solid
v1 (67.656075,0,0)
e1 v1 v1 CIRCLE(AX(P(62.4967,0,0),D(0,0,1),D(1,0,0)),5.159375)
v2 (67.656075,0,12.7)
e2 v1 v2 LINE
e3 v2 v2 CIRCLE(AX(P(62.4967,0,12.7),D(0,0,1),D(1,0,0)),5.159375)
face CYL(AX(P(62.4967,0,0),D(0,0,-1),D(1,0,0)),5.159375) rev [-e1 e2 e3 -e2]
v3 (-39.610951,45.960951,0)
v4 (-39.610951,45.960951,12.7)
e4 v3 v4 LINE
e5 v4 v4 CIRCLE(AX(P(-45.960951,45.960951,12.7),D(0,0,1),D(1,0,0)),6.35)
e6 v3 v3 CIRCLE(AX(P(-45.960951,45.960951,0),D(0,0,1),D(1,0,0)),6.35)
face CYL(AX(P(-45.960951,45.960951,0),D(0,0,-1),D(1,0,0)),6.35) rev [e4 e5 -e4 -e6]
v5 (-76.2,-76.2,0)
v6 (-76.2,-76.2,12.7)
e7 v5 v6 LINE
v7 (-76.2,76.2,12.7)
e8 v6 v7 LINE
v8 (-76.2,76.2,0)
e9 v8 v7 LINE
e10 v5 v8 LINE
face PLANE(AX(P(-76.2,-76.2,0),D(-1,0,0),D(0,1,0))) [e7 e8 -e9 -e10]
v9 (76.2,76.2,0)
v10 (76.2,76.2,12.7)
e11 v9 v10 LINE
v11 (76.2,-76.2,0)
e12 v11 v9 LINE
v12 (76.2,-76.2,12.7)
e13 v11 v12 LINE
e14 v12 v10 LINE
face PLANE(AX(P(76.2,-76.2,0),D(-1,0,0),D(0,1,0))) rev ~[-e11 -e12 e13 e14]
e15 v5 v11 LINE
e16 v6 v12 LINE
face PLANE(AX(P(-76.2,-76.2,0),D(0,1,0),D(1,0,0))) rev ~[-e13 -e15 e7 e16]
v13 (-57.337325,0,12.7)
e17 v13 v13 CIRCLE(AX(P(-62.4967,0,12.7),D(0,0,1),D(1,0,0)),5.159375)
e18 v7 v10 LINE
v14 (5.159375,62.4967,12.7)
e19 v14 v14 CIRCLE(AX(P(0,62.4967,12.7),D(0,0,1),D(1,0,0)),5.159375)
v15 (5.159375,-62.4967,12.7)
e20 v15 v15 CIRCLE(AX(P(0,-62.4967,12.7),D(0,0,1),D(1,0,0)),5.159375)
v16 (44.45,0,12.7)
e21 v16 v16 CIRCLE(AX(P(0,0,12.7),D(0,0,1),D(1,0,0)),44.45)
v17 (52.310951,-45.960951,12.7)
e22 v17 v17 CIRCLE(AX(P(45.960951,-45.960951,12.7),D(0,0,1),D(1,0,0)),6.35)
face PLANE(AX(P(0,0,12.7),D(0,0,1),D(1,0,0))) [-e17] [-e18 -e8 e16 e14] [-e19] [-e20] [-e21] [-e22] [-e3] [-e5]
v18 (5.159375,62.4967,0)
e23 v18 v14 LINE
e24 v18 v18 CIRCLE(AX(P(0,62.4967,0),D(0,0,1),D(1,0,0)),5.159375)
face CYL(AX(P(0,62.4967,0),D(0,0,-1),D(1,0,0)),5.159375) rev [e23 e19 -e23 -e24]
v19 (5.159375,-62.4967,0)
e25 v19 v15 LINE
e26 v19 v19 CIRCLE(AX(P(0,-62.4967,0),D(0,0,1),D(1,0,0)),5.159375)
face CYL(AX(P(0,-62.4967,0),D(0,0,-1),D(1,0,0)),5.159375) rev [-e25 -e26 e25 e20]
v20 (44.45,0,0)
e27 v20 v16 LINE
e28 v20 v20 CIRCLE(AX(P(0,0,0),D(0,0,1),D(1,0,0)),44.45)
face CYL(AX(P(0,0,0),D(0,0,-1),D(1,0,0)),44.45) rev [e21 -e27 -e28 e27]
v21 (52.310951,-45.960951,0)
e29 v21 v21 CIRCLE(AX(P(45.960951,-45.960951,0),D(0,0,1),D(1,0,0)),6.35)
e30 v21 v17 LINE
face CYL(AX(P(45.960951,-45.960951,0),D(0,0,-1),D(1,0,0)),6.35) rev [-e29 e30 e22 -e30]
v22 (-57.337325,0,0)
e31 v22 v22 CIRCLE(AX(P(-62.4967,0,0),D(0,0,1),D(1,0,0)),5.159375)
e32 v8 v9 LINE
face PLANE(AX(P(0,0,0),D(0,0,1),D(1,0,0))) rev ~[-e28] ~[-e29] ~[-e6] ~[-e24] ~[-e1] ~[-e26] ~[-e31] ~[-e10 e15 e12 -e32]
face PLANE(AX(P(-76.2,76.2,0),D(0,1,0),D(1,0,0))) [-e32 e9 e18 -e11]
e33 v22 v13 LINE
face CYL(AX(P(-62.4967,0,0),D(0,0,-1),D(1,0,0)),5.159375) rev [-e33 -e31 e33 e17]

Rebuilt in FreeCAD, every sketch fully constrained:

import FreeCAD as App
import Part
import Sketcher
from FreeCAD import Vector
Q = App.Units.Quantity

doc = App.newDocument("Part")
params = doc.addObject("Spreadsheet::Sheet", "Params")
for row, (alias, value) in enumerate([
    ("sketch1_diameter", "0.5 in"),
    ("sketch1_diameter2", "3.5 in"),
    ("sketch1_width", "6 in"),
    ("sketch1_diameter3", "0.40625 in"),
    ("pad1_length", "0.5 in"),
], start=1):
    params.set(f"A{row}", alias)
    params.set(f"B{row}", "=" + value)
    params.setAlias(f"B{row}", alias)

body = doc.addObject("PartDesign::Body", "Body")

# Sketch on XY plane
sketch1 = body.newObject("Sketcher::SketchObject", "Sketch")
sketch1.AttachmentSupport = (doc.getObject("XY_Plane"), [""])
sketch1.MapMode = "FlatFace"
sketch1.addGeometry(Part.LineSegment(Vector(-76, 76, 0), Vector(-76, -76, 0)), False)
sketch1.addGeometry(Part.LineSegment(Vector(-76, -76, 0), Vector(76, -76, 0)), False)
sketch1.addGeometry(Part.LineSegment(Vector(76, -76, 0), Vector(76, 76, 0)), False)
sketch1.addGeometry(Part.LineSegment(Vector(76, 76, 0), Vector(-76, 76, 0)), False)
sketch1.addGeometry(Part.Circle(Vector(0, -62, 0), Vector(0, 0, 1), 5), False)
sketch1.addGeometry(Part.Circle(Vector(46, -46, 0), Vector(0, 0, 1), 6), False)
sketch1.addGeometry(Part.Circle(Vector(-62, 0, 0), Vector(0, 0, 1), 5), False)
sketch1.addGeometry(Part.Circle(Vector(-46, 46, 0), Vector(0, 0, 1), 6), False)
sketch1.addGeometry(Part.Circle(Vector(0, 0, 0), Vector(0, 0, 1), 44), False)
sketch1.addGeometry(Part.Circle(Vector(62, 0, 0), Vector(0, 0, 1), 5), False)
sketch1.addGeometry(Part.Circle(Vector(0, 62, 0), Vector(0, 0, 1), 5), False)
sketch1.addConstraint(Sketcher.Constraint("Coincident", 0, 2, 1, 1))
sketch1.addConstraint(Sketcher.Constraint("Coincident", 1, 2, 2, 1))
sketch1.addConstraint(Sketcher.Constraint("Coincident", 2, 2, 3, 1))
sketch1.addConstraint(Sketcher.Constraint("Coincident", 3, 2, 0, 1))
sketch1.addConstraint(Sketcher.Constraint("Vertical", 0))
sketch1.addConstraint(Sketcher.Constraint("Horizontal", 1))
sketch1.addConstraint(Sketcher.Constraint("Vertical", 2))
sketch1.addConstraint(Sketcher.Constraint("Horizontal", 3))
sketch1.addConstraint(Sketcher.Constraint("Coincident", 8, 3, -1, 1))
sketch1.addConstraint(Sketcher.Constraint("Equal", 4, 6))
sketch1.addConstraint(Sketcher.Constraint("Equal", 5, 7))
sketch1.addConstraint(Sketcher.Constraint("Equal", 6, 9))
sketch1.addConstraint(Sketcher.Constraint("Equal", 9, 10))
sketch1.addConstraint(Sketcher.Constraint("Symmetric", 5, 3, 7, 3, -1, 1))
sketch1.addConstraint(Sketcher.Constraint("Symmetric", 6, 3, 9, 3, -1, 1))
sketch1.addConstraint(Sketcher.Constraint("Symmetric", 4, 3, 10, 3, -1, 1))
sketch1.addConstraint(Sketcher.Constraint("Symmetric", 0, 2, 2, 2, -1, 1))
sketch1.addConstraint(Sketcher.Constraint("PointOnObject", 4, 3, -2))
sketch1.addConstraint(Sketcher.Constraint("PointOnObject", 6, 3, -1))
sketch1.addConstraint(Sketcher.Constraint("Equal", 3, 0))
sketch1.addConstraint(Sketcher.Constraint("Diameter", 5, Q("0.5 in")))
sketch1.addConstraint(Sketcher.Constraint("Diameter", 8, Q("3.5 in")))
sketch1.addConstraint(Sketcher.Constraint("DistanceX", 1, 1, 1, 2, Q("6 in")))
sketch1.addConstraint(Sketcher.Constraint("Diameter", 4, Q("0.40625 in")))
sketch1.addConstraint(Sketcher.Constraint("DistanceX", 6, 3, 9, 3, Q("4.921 in")))
sketch1.addConstraint(Sketcher.Constraint("DistanceY", 4, 3, -1, 1, Q("2.4605 in")))
sketch1.addConstraint(Sketcher.Constraint("DistanceX", -1, 1, 5, 3, 45.960951))
sketch1.addConstraint(Sketcher.Constraint("DistanceY", 5, 3, -1, 1, 45.960951))
sketch1.setExpression("Constraints[20]", "Params.sketch1_diameter")
sketch1.setExpression("Constraints[21]", "Params.sketch1_diameter2")
sketch1.setExpression("Constraints[22]", "Params.sketch1_width")
sketch1.setExpression("Constraints[23]", "Params.sketch1_diameter3")
pad1 = body.newObject("PartDesign::Pad", "Pad")
pad1.Profile = sketch1
pad1.setExpression("Length", "Params.pad1_length")

doc.recompute()
